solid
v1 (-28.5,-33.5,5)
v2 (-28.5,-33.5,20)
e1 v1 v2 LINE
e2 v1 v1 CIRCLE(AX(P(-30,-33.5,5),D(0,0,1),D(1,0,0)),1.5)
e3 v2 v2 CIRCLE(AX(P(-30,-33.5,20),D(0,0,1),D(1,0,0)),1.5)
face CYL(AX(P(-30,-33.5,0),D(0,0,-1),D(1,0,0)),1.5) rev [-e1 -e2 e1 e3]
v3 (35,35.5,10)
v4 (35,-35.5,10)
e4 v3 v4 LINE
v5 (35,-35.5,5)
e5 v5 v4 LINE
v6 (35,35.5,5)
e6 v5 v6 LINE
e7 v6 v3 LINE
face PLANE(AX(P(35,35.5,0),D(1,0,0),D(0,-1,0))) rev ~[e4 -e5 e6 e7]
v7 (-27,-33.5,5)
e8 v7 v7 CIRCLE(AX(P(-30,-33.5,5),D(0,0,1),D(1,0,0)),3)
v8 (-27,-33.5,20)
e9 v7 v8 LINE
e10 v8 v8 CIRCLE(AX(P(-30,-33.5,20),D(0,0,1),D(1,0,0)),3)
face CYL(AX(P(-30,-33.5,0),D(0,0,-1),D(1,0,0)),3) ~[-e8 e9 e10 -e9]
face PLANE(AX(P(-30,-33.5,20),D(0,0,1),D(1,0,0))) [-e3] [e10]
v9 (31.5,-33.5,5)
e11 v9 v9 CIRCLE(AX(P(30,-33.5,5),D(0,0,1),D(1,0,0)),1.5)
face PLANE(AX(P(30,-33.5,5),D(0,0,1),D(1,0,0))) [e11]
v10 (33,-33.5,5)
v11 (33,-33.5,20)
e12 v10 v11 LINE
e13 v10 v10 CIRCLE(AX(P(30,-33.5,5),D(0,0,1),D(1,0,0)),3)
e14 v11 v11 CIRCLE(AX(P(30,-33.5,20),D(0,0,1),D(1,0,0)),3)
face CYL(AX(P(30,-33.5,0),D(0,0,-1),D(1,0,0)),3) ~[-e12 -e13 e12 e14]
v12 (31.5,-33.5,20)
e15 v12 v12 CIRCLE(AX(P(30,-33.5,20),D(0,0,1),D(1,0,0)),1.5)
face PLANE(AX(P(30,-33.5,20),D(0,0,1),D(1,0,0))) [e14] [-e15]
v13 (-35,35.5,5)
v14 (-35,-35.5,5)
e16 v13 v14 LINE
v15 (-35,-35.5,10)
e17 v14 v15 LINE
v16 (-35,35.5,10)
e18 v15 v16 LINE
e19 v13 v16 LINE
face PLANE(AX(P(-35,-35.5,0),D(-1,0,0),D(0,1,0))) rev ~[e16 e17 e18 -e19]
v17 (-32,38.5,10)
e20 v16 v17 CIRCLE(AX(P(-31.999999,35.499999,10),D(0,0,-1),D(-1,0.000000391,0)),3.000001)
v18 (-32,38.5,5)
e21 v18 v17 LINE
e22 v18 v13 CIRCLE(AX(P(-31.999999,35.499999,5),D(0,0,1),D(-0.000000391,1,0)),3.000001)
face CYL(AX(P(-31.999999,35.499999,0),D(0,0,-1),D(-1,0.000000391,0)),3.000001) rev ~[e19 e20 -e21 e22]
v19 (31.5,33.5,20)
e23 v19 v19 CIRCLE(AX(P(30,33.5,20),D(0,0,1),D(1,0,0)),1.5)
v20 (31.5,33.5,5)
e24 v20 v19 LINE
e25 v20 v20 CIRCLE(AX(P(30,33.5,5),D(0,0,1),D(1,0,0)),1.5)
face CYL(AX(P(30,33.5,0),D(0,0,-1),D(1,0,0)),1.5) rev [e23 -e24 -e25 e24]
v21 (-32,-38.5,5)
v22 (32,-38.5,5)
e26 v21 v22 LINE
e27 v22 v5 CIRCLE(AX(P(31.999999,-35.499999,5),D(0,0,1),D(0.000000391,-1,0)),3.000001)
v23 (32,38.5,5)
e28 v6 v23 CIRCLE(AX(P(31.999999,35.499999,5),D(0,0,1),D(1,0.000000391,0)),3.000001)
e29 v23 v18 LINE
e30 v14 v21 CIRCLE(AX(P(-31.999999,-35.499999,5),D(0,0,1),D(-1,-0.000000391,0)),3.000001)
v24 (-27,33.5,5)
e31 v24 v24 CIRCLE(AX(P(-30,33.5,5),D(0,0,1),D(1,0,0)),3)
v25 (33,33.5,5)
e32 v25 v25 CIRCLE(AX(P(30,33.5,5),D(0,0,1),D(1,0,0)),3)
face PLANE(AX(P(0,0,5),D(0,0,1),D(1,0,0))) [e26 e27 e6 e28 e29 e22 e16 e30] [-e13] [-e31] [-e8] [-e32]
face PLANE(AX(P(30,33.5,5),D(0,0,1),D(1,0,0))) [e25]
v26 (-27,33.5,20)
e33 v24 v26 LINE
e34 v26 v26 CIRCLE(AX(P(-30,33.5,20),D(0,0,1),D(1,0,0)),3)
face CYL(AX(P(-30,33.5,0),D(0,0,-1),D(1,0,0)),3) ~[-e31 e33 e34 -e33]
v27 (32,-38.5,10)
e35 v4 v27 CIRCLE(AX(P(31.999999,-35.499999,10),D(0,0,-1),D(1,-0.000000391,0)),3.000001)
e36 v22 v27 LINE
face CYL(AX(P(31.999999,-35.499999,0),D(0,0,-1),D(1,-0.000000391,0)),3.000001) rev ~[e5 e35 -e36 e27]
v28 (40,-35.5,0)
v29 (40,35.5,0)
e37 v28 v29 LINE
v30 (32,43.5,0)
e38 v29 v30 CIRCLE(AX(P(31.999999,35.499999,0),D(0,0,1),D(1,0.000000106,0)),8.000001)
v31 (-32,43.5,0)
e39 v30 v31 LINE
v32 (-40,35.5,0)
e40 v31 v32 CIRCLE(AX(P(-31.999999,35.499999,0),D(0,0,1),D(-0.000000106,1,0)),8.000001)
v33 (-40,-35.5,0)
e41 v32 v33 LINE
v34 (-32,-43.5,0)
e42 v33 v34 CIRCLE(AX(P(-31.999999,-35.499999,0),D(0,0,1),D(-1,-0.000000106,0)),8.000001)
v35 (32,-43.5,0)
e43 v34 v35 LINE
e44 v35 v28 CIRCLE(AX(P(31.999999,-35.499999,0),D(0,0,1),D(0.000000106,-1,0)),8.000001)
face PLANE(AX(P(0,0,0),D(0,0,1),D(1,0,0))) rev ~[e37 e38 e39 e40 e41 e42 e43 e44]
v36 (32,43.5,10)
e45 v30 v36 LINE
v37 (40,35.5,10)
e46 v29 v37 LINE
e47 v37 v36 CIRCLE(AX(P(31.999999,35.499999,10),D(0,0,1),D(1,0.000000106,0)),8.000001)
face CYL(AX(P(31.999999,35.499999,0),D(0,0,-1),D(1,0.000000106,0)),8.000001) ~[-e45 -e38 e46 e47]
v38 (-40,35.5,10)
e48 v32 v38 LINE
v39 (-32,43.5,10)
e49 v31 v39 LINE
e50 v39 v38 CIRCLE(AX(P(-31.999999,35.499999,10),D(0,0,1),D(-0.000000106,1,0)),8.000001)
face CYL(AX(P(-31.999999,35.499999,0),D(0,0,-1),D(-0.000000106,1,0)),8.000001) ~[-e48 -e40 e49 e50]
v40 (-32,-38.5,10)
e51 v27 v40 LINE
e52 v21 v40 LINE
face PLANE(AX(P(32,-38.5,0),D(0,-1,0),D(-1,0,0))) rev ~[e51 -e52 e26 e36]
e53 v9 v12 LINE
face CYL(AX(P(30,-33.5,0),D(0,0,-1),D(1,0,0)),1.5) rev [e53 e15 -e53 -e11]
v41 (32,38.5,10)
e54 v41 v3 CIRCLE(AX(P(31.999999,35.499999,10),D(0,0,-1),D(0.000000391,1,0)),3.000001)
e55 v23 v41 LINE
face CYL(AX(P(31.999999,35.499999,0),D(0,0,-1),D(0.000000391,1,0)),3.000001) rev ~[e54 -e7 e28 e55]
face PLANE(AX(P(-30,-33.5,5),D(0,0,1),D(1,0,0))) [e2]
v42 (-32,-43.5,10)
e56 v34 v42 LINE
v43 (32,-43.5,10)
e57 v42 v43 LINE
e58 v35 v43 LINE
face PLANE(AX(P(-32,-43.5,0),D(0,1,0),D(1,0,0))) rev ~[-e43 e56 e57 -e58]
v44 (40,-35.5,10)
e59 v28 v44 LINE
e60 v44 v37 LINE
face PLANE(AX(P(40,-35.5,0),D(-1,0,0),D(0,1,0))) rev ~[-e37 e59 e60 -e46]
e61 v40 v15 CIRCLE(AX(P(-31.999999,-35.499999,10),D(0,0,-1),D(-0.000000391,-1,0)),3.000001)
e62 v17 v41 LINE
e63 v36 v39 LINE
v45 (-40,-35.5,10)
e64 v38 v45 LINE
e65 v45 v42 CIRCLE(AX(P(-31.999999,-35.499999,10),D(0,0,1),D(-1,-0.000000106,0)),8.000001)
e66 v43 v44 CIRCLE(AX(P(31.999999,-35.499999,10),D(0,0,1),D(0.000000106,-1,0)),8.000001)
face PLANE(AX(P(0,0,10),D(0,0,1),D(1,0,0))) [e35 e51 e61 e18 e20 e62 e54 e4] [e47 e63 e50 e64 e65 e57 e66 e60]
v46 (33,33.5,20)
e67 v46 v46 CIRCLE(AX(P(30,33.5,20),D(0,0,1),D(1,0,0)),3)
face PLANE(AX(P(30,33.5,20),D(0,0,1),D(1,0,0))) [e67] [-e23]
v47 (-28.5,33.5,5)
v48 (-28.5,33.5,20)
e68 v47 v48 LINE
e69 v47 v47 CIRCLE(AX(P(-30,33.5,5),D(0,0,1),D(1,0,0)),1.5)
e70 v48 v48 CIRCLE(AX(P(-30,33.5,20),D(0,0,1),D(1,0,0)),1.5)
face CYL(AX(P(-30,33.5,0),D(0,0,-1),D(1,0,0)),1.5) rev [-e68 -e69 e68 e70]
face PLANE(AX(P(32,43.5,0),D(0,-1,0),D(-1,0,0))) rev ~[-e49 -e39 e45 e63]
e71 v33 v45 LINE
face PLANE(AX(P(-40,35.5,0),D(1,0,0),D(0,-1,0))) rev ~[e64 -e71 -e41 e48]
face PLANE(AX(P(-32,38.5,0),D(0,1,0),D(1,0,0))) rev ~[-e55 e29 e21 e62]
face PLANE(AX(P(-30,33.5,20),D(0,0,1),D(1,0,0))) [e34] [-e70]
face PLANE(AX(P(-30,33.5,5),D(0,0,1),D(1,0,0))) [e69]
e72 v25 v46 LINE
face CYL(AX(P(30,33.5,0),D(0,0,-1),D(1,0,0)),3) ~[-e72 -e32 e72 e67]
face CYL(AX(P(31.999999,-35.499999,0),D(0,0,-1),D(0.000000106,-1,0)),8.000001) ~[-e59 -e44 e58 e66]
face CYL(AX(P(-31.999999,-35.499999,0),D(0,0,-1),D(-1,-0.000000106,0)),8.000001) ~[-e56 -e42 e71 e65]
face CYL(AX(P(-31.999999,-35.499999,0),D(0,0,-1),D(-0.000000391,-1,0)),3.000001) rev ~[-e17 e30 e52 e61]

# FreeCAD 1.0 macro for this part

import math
import FreeCAD as App
import Part
import Sketcher

V = App.Vector

doc = App.newDocument("Part")
body = doc.addObject("PartDesign::Body", "Body")
body.AllowCompound = True

sketch1 = body.newObject("Sketcher::SketchObject", "Sketch")
sketch1.AttachmentSupport = (doc.getObject("XY_Plane"), [""])
sketch1.MapMode = "FlatFace"
sketch1.addGeometry([
    Part.ArcOfCircle(Part.Circle(V(32, 35.5, 0), V(0, 0, 1), 8), math.radians(0), math.radians(90)),
    Part.LineSegment(V(32, 43.5, 0), V(-32, 43.5, 0)),
    Part.ArcOfCircle(Part.Circle(V(-32, 35.5, 0), V(0, 0, 1), 8), math.radians(90), math.radians(180)),
    Part.LineSegment(V(-40, 35.5, 0), V(-40, -35.5, 0)),
    Part.ArcOfCircle(Part.Circle(V(-32, -35.5, 0), V(0, 0, 1), 8), math.radians(-180), math.radians(-90)),
    Part.LineSegment(V(-32, -43.5, 0), V(32, -43.5, 0)),
    Part.ArcOfCircle(Part.Circle(V(32, -35.5, 0), V(0, 0, 1), 8), math.radians(-90), math.radians(0)),
    Part.LineSegment(V(40, -35.5, 0), V(40, 35.5, 0)),
    Part.ArcOfCircle(Part.Circle(V(-32, 35.5, 0), V(0, 0, 1), 3), math.radians(90), math.radians(180)),
    Part.LineSegment(V(-32, 38.5, 0), V(32, 38.5, 0)),
    Part.ArcOfCircle(Part.Circle(V(32, 35.5, 0), V(0, 0, 1), 3), math.radians(0), math.radians(90)),
    Part.LineSegment(V(35, 35.5, 0), V(35, -35.5, 0)),
    Part.ArcOfCircle(Part.Circle(V(32, -35.5, 0), V(0, 0, 1), 3), math.radians(-90), math.radians(0)),
    Part.LineSegment(V(32, -38.5, 0), V(-32, -38.5, 0)),
    Part.ArcOfCircle(Part.Circle(V(-32, -35.5, 0), V(0, 0, 1), 3), math.radians(-180), math.radians(-90)),
    Part.LineSegment(V(-35, -35.5, 0), V(-35, 35.5, 0)),
], False)
sketch1.addConstraint([
    Sketcher.Constraint("Tangent", 0, 2, 1, 1),
    Sketcher.Constraint("Tangent", 1, 2, 2, 1),
    Sketcher.Constraint("Tangent", 2, 2, 3, 1),
    Sketcher.Constraint("Tangent", 3, 2, 4, 1),
    Sketcher.Constraint("Tangent", 4, 2, 5, 1),
    Sketcher.Constraint("Tangent", 5, 2, 6, 1),
    Sketcher.Constraint("Tangent", 6, 2, 7, 1),
    Sketcher.Constraint("Tangent", 7, 2, 0, 1),
    Sketcher.Constraint("Tangent", 8, 1, 9, 1),
    Sketcher.Constraint("Tangent", 9, 2, 10, 2),
    Sketcher.Constraint("Tangent", 10, 1, 11, 1),
    Sketcher.Constraint("Tangent", 11, 2, 12, 2),
    Sketcher.Constraint("Tangent", 12, 1, 13, 1),
    Sketcher.Constraint("Tangent", 13, 2, 14, 2),
    Sketcher.Constraint("Tangent", 14, 1, 15, 1),
    Sketcher.Constraint("Tangent", 15, 2, 8, 2),
    Sketcher.Constraint("Horizontal", 1),
    Sketcher.Constraint("Vertical", 3),
    Sketcher.Constraint("Horizontal", 5),
    Sketcher.Constraint("Vertical", 7),
    Sketcher.Constraint("Horizontal", 9),
    Sketcher.Constraint("Vertical", 11),
    Sketcher.Constraint("Horizontal", 13),
    Sketcher.Constraint("Vertical", 15),
    Sketcher.Constraint("Coincident", 8, 3, 2, 3),
    Sketcher.Constraint("Coincident", 10, 3, 0, 3),
    Sketcher.Constraint("Coincident", 12, 3, 6, 3),
    Sketcher.Constraint("Equal", 0, 2),
    Sketcher.Constraint("Equal", 2, 4),
    Sketcher.Constraint("Equal", 4, 6),
    Sketcher.Constraint("Equal", 12, 14),
    Sketcher.Constraint("Symmetric", 0, 3, 4, 3, -1, 1),
    Sketcher.Constraint("Radius", 0, 8.000001),
    Sketcher.Constraint("Radius", 8, 3.000001),
    Sketcher.Constraint("DistanceX", 1, 2, 1, 1, 64.0),
    Sketcher.Constraint("DistanceY", 3, 2, 3, 1, 71.0),
])
pad1 = body.newObject("PartDesign::Pad", "Pad")
pad1.Profile = sketch1
pad1.Length = 10

sketch2 = body.newObject("Sketcher::SketchObject", "Sketch001")
sketch2.AttachmentSupport = (doc.getObject("XY_Plane"), [""])
sketch2.MapMode = "FlatFace"
sketch2.addGeometry([
    Part.ArcOfCircle(Part.Circle(V(32, 35.5, 0), V(0, 0, 1), 3), math.radians(0), math.radians(90)),
    Part.LineSegment(V(32, 38.5, 0), V(-32, 38.5, 0)),
    Part.ArcOfCircle(Part.Circle(V(-32, 35.5, 0), V(0, 0, 1), 3), math.radians(90), math.radians(180)),
    Part.LineSegment(V(-35, 35.5, 0), V(-35, -35.5, 0)),
    Part.ArcOfCircle(Part.Circle(V(-32, -35.5, 0), V(0, 0, 1), 3), math.radians(-180), math.radians(-90)),
    Part.LineSegment(V(-32, -38.5, 0), V(32, -38.5, 0)),
    Part.ArcOfCircle(Part.Circle(V(32, -35.5, 0), V(0, 0, 1), 3), math.radians(-90), math.radians(0)),
    Part.LineSegment(V(35, -35.5, 0), V(35, 35.5, 0)),
    Part.Circle(V(-30, -33.5, 0), V(0, 0, 1), 3),
    Part.Circle(V(30, -33.5, 0), V(0, 0, 1), 3),
    Part.Circle(V(-30, 33.5, 0), V(0, 0, 1), 3),
    Part.Circle(V(30, 33.5, 0), V(0, 0, 1), 3),
    Part.Circle(V(-30, -33.5, 0), V(0, 0, 1), 1.5),
    Part.Circle(V(30, -33.5, 0), V(0, 0, 1), 1.5),
    Part.Circle(V(30, 33.5, 0), V(0, 0, 1), 1.5),
    Part.Circle(V(-30, 33.5, 0), V(0, 0, 1), 1.5),
], False)
sketch2.addConstraint([
    Sketcher.Constraint("Tangent", 0, 2, 1, 1),
    Sketcher.Constraint("Tangent", 1, 2, 2, 1),
    Sketcher.Constraint("Tangent", 2, 2, 3, 1),
    Sketcher.Constraint("Tangent", 3, 2, 4, 1),
    Sketcher.Constraint("Tangent", 4, 2, 5, 1),
    Sketcher.Constraint("Tangent", 5, 2, 6, 1),
    Sketcher.Constraint("Tangent", 6, 2, 7, 1),
    Sketcher.Constraint("Tangent", 7, 2, 0, 1),
    Sketcher.Constraint("Horizontal", 1),
    Sketcher.Constraint("Vertical", 3),
    Sketcher.Constraint("Horizontal", 5),
    Sketcher.Constraint("Vertical", 7),
    Sketcher.Constraint("Coincident", 12, 3, 8, 3),
    Sketcher.Constraint("Coincident", 13, 3, 9, 3),
    Sketcher.Constraint("Coincident", 14, 3, 11, 3),
    Sketcher.Constraint("Coincident", 15, 3, 10, 3),
    Sketcher.Constraint("Equal", 0, 2),
    Sketcher.Constraint("Equal", 2, 4),
    Sketcher.Constraint("Equal", 4, 6),
    Sketcher.Constraint("Equal", 6, 8),
    Sketcher.Constraint("Equal", 8, 9),
    Sketcher.Constraint("Equal", 9, 10),
    Sketcher.Constraint("Equal", 10, 11),
    Sketcher.Constraint("Equal", 12, 13),
    Sketcher.Constraint("Equal", 13, 14),
    Sketcher.Constraint("Equal", 14, 15),
    Sketcher.Constraint("Symmetric", 0, 3, 4, 3, -1, 1),
    Sketcher.Constraint("Symmetric", 9, 3, 10, 3, -1, 1),
    Sketcher.Constraint("Symmetric", 8, 3, 11, 3, -1, 1),
    Sketcher.Constraint("Symmetric", 8, 3, 9, 3, -2),
    Sketcher.Constraint("Diameter", 8, 6.0),
    Sketcher.Constraint("Diameter", 12, 3.0),
    Sketcher.Constraint("DistanceX", 1, 2, 1, 1, 64.0),
    Sketcher.Constraint("DistanceY", 3, 2, 3, 1, 71.0),
    Sketcher.Constraint("DistanceX", 8, 3, -1, 1, 30.0),
    Sketcher.Constraint("DistanceY", 4, 3, 8, 3, 1.999999),
])
pad2 = body.newObject("PartDesign::Pad", "Pad001")
pad2.Profile = sketch2
pad2.Length = 5

sketch3 = body.newObject("Sketcher::SketchObject", "Sketch002")
sketch3.AttachmentSupport = (doc.getObject("XY_Plane"), [""])
sketch3.MapMode = "FlatFace"
sketch3.addGeometry([
    Part.Circle(V(-30, 33.5, 0), V(0, 0, 1), 3),
    Part.Circle(V(-30, 33.5, 0), V(0, 0, 1), 1.5),
    Part.Circle(V(30, 33.5, 0), V(0, 0, 1), 3),
    Part.Circle(V(30, 33.5, 0), V(0, 0, 1), 1.5),
    Part.Circle(V(30, -33.5, 0), V(0, 0, 1), 3),
    Part.Circle(V(30, -33.5, 0), V(0, 0, 1), 1.5),
    Part.Circle(V(-30, -33.5, 0), V(0, 0, 1), 3),
    Part.Circle(V(-30, -33.5, 0), V(0, 0, 1), 1.5),
], False)
sketch3.addConstraint([
    Sketcher.Constraint("Coincident", 1, 3, 0, 3),
    Sketcher.Constraint("Coincident", 3, 3, 2, 3),
    Sketcher.Constraint("Coincident", 5, 3, 4, 3),
    Sketcher.Constraint("Coincident", 7, 3, 6, 3),
    Sketcher.Constraint("Equal", 0, 2),
    Sketcher.Constraint("Equal", 1, 3),
    Sketcher.Constraint("Equal", 2, 4),
    Sketcher.Constraint("Equal", 3, 5),
    Sketcher.Constraint("Equal", 4, 6),
    Sketcher.Constraint("Equal", 5, 7),
    Sketcher.Constraint("Symmetric", 0, 3, 4, 3, -1, 1),
    Sketcher.Constraint("Symmetric", 2, 3, 6, 3, -1, 1),
    Sketcher.Constraint("Symmetric", 0, 3, 2, 3, -2),
    Sketcher.Constraint("Diameter", 0, 6.0),
    Sketcher.Constraint("Diameter", 1, 3.0),
    Sketcher.Constraint("DistanceX", 0, 3, -1, 1, 30.0),
    Sketcher.Constraint("DistanceY", 4, 3, 2, 3, 67.0),
])
pad3 = body.newObject("PartDesign::Pad", "Pad002")
pad3.Profile = sketch3
pad3.Length = 20

doc.recompute()
